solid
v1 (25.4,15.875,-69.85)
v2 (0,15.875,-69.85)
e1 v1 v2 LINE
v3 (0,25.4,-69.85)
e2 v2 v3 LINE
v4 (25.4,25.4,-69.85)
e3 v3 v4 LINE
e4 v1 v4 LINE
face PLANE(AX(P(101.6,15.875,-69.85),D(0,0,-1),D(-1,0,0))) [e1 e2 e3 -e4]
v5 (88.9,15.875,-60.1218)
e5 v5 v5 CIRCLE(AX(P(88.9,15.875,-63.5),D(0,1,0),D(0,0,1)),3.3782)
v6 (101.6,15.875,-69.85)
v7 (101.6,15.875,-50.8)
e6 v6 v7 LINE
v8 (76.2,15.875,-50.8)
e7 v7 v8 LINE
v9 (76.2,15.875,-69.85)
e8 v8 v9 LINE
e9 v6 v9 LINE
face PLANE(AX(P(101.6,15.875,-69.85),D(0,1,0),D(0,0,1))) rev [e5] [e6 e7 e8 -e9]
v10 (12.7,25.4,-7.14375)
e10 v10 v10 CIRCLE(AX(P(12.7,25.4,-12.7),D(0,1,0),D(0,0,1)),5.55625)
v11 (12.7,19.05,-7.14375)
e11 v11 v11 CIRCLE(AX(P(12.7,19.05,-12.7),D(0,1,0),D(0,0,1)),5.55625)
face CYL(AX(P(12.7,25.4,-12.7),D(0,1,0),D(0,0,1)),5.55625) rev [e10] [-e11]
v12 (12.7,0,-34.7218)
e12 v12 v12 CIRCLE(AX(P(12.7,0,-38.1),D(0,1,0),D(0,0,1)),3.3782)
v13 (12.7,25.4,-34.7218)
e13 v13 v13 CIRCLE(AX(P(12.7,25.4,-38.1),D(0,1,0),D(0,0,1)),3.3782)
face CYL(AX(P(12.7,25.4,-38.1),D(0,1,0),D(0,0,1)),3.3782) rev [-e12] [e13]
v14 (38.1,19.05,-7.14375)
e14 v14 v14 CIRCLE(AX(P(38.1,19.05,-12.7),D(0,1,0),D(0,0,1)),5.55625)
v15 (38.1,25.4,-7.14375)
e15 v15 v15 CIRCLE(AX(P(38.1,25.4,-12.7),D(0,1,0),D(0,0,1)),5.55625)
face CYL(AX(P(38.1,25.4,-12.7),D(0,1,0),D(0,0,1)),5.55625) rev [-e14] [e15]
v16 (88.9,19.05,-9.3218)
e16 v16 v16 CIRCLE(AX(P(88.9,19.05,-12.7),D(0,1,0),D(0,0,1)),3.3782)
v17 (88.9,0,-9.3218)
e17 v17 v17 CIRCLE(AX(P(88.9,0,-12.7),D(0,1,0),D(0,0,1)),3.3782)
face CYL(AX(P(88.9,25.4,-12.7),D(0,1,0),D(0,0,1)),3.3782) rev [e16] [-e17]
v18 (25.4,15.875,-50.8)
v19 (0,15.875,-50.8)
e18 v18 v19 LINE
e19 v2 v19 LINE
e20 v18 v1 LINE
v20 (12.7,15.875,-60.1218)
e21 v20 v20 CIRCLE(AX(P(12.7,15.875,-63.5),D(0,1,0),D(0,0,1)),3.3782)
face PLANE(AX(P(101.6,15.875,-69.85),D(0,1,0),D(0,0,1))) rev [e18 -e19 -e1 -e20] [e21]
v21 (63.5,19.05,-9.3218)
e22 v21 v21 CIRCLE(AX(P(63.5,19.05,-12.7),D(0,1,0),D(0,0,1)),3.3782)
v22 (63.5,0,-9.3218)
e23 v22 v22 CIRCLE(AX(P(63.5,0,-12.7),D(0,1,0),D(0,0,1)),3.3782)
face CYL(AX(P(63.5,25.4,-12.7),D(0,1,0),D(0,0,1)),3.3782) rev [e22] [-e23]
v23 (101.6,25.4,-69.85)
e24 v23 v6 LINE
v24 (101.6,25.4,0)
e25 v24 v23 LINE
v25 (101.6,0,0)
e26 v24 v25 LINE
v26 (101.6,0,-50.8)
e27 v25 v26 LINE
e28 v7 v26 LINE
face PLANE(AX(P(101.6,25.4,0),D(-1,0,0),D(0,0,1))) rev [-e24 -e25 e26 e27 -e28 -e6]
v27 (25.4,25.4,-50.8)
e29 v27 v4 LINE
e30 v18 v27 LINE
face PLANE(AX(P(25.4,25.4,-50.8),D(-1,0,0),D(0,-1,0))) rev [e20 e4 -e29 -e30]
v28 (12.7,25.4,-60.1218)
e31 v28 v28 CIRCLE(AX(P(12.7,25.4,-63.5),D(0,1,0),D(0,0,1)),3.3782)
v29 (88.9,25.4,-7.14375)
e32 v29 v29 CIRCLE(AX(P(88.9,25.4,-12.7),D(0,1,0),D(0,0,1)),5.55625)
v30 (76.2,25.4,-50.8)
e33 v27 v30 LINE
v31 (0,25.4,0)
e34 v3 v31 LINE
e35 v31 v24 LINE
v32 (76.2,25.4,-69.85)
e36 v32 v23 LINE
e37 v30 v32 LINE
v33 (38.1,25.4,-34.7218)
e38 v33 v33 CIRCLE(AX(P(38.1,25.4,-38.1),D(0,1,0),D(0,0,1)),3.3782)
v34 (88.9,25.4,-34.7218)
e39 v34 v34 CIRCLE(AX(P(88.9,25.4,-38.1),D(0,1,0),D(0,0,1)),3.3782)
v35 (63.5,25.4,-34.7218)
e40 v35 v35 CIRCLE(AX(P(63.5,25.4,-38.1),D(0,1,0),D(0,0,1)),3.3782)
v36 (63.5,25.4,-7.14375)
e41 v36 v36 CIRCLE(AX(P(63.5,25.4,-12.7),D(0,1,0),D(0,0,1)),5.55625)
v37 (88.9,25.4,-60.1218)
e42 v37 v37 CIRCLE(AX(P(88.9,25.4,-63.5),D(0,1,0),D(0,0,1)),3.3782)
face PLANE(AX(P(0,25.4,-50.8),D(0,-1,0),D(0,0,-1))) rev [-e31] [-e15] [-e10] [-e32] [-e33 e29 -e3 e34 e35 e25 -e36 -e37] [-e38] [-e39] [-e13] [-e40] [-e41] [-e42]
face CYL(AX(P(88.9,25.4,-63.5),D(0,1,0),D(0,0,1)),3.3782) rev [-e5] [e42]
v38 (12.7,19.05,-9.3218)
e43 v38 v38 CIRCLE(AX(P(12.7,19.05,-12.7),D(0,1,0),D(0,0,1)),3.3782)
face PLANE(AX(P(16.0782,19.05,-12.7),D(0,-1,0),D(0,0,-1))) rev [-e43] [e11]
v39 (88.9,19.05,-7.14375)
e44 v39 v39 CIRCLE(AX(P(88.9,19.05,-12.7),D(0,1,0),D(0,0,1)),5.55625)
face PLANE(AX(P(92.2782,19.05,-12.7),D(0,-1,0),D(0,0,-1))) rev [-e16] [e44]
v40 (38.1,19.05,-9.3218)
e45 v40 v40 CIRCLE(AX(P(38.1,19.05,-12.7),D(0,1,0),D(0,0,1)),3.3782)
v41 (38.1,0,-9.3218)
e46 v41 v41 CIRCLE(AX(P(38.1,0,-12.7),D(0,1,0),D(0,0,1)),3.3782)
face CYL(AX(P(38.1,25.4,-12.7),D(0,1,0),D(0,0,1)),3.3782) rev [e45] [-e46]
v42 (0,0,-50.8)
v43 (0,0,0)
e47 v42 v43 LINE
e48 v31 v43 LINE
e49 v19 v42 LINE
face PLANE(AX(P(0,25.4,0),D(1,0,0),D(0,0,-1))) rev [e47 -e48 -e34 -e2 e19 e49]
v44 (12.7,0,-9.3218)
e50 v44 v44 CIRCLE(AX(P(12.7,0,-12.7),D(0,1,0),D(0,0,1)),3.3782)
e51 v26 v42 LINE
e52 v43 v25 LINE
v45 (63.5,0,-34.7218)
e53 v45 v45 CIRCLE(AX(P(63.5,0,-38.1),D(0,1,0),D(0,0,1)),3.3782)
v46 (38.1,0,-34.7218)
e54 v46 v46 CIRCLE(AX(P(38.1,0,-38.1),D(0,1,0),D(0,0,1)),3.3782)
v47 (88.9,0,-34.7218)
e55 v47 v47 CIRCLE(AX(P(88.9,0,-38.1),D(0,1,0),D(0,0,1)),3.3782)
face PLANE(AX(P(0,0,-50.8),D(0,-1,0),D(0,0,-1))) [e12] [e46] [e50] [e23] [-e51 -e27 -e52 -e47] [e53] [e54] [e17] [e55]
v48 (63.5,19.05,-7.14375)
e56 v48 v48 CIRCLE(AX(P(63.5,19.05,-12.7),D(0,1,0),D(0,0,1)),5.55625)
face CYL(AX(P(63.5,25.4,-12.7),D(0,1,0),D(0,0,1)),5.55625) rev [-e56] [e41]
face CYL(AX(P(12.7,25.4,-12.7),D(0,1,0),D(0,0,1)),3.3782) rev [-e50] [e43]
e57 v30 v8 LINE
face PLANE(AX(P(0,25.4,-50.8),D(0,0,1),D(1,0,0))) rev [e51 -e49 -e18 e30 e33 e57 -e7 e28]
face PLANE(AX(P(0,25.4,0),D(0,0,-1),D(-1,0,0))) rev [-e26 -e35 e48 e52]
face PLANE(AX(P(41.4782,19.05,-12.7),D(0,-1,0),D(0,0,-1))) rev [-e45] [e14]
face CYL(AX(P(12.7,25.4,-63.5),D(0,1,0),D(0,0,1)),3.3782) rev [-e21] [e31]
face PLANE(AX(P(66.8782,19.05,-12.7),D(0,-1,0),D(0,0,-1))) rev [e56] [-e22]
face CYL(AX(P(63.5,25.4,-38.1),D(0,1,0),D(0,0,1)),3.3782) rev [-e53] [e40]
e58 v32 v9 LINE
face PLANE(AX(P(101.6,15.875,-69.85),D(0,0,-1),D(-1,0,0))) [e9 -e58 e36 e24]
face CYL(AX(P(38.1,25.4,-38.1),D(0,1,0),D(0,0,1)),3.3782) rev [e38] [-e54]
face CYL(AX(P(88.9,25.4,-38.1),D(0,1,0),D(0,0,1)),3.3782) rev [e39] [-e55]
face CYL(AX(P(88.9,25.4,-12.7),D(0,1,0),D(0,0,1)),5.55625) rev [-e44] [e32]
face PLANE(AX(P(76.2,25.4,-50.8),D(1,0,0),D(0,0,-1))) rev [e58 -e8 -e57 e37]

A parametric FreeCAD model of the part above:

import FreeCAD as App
import Part
import Sketcher
Q = App.Units.Quantity


def add_polygon(sketch, points):
    """Adds a closed chain of lines whose ends are joined by coincident constraints."""
    first, n = sketch.GeometryCount, len(points)
    for a, b in zip(points, points[1:] + points[:1]):
        sketch.addGeometry(Part.LineSegment(App.Vector(*a, 0), App.Vector(*b, 0)), False)
    for i in range(n):
        sketch.addConstraint(Sketcher.Constraint("Coincident", first + i, 2, first + (i + 1) % n, 1))

doc = App.newDocument("Part")
body = doc.addObject("PartDesign::Body", "Body")

# Sketch on XZ plane
sketch1 = body.newObject("Sketcher::SketchObject", "Sketch")
sketch1.AttachmentSupport = (doc.getObject("XZ_Plane"), [""])
sketch1.MapMode = "FlatFace"
add_polygon(sketch1, [(0, -51), (0, 0), (102, 0), (102, -51)])  # lines 0-3
sketch1.addConstraint(Sketcher.Constraint("Vertical", 0))
sketch1.addConstraint(Sketcher.Constraint("Horizontal", 1))
sketch1.addConstraint(Sketcher.Constraint("Vertical", 2))
sketch1.addConstraint(Sketcher.Constraint("Horizontal", 3))
sketch1.addConstraint(Sketcher.Constraint("Coincident", 0, 2, -1, 1))
sketch1.addConstraint(Sketcher.Constraint("DistanceX", 1, 1, 1, 2, Q("4 in")))
sketch1.addConstraint(Sketcher.Constraint("DistanceY", 0, 1, 0, 2, Q("2 in")))
pad1 = body.newObject("PartDesign::Pad", "Pad")
pad1.Profile = sketch1
pad1.Length = Q("1 in")
pad1.Reversed = True

# Sketch on XZ plane
sketch2 = body.newObject("Sketcher::SketchObject", "Sketch001")
sketch2.AttachmentSupport = (doc.getObject("XZ_Plane"), [""])
sketch2.MapMode = "FlatFace"
sketch2.AttachmentOffset = App.Placement(App.Vector(0, 0, -1 * 25.4), App.Rotation())
sketch2.addGeometry(Part.Circle(App.Vector(12.7, -12.7, 0), App.Vector(0, 0, 1), 3.4), False)
sketch2.addConstraint(Sketcher.Constraint("Diameter", 0, Q("0.266 in")))
sketch2.addConstraint(Sketcher.Constraint("DistanceX", -1, 1, 0, 3, Q("0.5 in")))
sketch2.addConstraint(Sketcher.Constraint("DistanceY", 0, 3, -1, 1, Q("0.5 in")))
doc.recompute()
hole = body.newObject("PartDesign::Hole", "Hole")
hole.Profile = sketch2
hole.ThreadType = "None"
hole.Diameter = Q("0.266 in")
hole.DepthType = "ThroughAll"
hole.HoleCutType = "Counterbore"
hole.HoleCutDiameter = Q("0.4375 in")
hole.HoleCutDepth = Q("0.25 in")
hole.Reversed = True
doc.recompute()

linearpattern = body.newObject("PartDesign::LinearPattern", "LinearPattern")
linearpattern.Originals = [hole]
linearpattern.Direction = (doc.getObject("X_Axis"), [""])
linearpattern.Mode = "offset"
linearpattern.Offset = Q("1 in")
linearpattern.Occurrences = 4
body.Tip = linearpattern

# Sketch on XZ plane
sketch3 = body.newObject("Sketcher::SketchObject", "Sketch002")
sketch3.AttachmentSupport = (doc.getObject("XZ_Plane"), [""])
sketch3.MapMode = "FlatFace"
sketch3.AttachmentOffset = App.Placement(App.Vector(0, 0, -1 * 25.4), App.Rotation())
sketch3.addGeometry(Part.Circle(App.Vector(12.7, -38.1, 0), App.Vector(0, 0, 1), 3.4), False)
sketch3.addConstraint(Sketcher.Constraint("Diameter", 0, Q("0.266 in")))
sketch3.addConstraint(Sketcher.Constraint("DistanceX", -1, 1, 0, 3, Q("0.5 in")))
sketch3.addConstraint(Sketcher.Constraint("DistanceY", 0, 3, -1, 1, Q("1.5 in")))
doc.recompute()
hole2 = body.newObject("PartDesign::Hole", "Hole001")
hole2.Profile = sketch3
hole2.ThreadType = "None"
hole2.Diameter = Q("0.266 in")
hole2.DepthType = "ThroughAll"
hole2.Reversed = True
doc.recompute()

linearpattern2 = body.newObject("PartDesign::LinearPattern", "LinearPattern001")
linearpattern2.Originals = [hole2]
linearpattern2.Direction = (doc.getObject("X_Axis"), [""])
linearpattern2.Mode = "offset"
linearpattern2.Offset = Q("1 in")
linearpattern2.Occurrences = 4
body.Tip = linearpattern2

# Sketch on XY plane
sketch4 = body.newObject("Sketcher::SketchObject", "Sketch003")
sketch4.AttachmentSupport = (doc.getObject("XY_Plane"), [""])
sketch4.MapMode = "FlatFace"
sketch4.AttachmentOffset = App.Placement(App.Vector(0, 0, -2 * 25.4), App.Rotation())
add_polygon(sketch4, [(102, 25), (102, 16), (0, 16), (0, 25)])  # lines 0-3
sketch4.addConstraint(Sketcher.Constraint("Vertical", 0))
sketch4.addConstraint(Sketcher.Constraint("Horizontal", 1))
sketch4.addConstraint(Sketcher.Constraint("Vertical", 2))
sketch4.addConstraint(Sketcher.Constraint("Horizontal", 3))
sketch4.addConstraint(Sketcher.Constraint("PointOnObject", 1, 2, -2))
sketch4.addConstraint(Sketcher.Constraint("DistanceX", 1, 2, 1, 1, Q("4 in")))
sketch4.addConstraint(Sketcher.Constraint("DistanceY", -1, 1, 2, 2, Q("1 in")))
sketch4.addConstraint(Sketcher.Constraint("DistanceY", 0, 2, 0, 1, Q("0.375 in")))
pad2 = body.newObject("PartDesign::Pad", "Pad001")
pad2.Profile = sketch4
pad2.Length = Q("0.75 in")
pad2.Reversed = True

# Sketch on XY plane
sketch5 = body.newObject("Sketcher::SketchObject", "Sketch004")
sketch5.AttachmentSupport = (doc.getObject("XY_Plane"), [""])
sketch5.MapMode = "FlatFace"
sketch5.AttachmentOffset = App.Placement(App.Vector(0, 0, -2.75 * 25.4), App.Rotation())
add_polygon(sketch5, [(76, 25), (76, 16), (25, 16), (25, 25)])  # lines 0-3
sketch5.addConstraint(Sketcher.Constraint("Vertical", 0))
sketch5.addConstraint(Sketcher.Constraint("Horizontal", 1))
sketch5.addConstraint(Sketcher.Constraint("Vertical", 2))
sketch5.addConstraint(Sketcher.Constraint("Horizontal", 3))
sketch5.addConstraint(Sketcher.Constraint("DistanceX", 1, 2, 1, 1, Q("2 in")))
sketch5.addConstraint(Sketcher.Constraint("DistanceX", -1, 1, 0, 2, Q("3 in")))
sketch5.addConstraint(Sketcher.Constraint("DistanceY", -1, 1, 2, 2, Q("1 in")))
sketch5.addConstraint(Sketcher.Constraint("DistanceY", 0, 2, 0, 1, Q("0.375 in")))
pocket1 = body.newObject("PartDesign::Pocket", "Pocket")
pocket1.Profile = sketch5
pocket1.Length = Q("0.75 in")
pocket1.Reversed = True
doc.recompute()

linearpattern3 = body.newObject("PartDesign::LinearPattern", "LinearPattern002")
linearpattern3.Originals = [hole2]
linearpattern3.Direction = (doc.getObject("Z_Axis"), [""])
linearpattern3.Mode = "offset"
linearpattern3.Offset = Q("1 in")
linearpattern3.Occurrences = 2
linearpattern3.Reversed = True
body.Tip = linearpattern3

# Sketch on XZ plane
sketch6 = body.newObject("Sketcher::SketchObject", "Sketch005")
sketch6.AttachmentSupport = (doc.getObject("XZ_Plane"), [""])
sketch6.MapMode = "FlatFace"
sketch6.AttachmentOffset = App.Placement(App.Vector(0, 0, -1 * 25.4), App.Rotation())
sketch6.addGeometry(Part.Circle(App.Vector(88.9, -63.5, 0), App.Vector(0, 0, 1), 3.4), False)
sketch6.addConstraint(Sketcher.Constraint("Diameter", 0, Q("0.266 in")))
sketch6.addConstraint(Sketcher.Constraint("DistanceX", -1, 1, 0, 3, Q("3.5 in")))
sketch6.addConstraint(Sketcher.Constraint("DistanceY", 0, 3, -1, 1, Q("2.5 in")))
doc.recompute()
hole3 = body.newObject("PartDesign::Hole", "Hole002")
hole3.Profile = sketch6
hole3.ThreadType = "None"
hole3.Diameter = Q("0.266 in")
hole3.DepthType = "ThroughAll"
hole3.Reversed = True

# Sketch on XZ plane
sketch7 = body.newObject("Sketcher::SketchObject", "Sketch006")
sketch7.AttachmentSupport = (doc.getObject("XZ_Plane"), [""])
sketch7.MapMode = "FlatFace"
sketch7.AttachmentOffset = App.Placement(App.Vector(0, 0, -1 * 25.4), App.Rotation())
sketch7.addGeometry(Part.Circle(App.Vector(88.9, -38.1, 0), App.Vector(0, 0, 1), 3.4), False)
sketch7.addConstraint(Sketcher.Constraint("Diameter", 0, Q("0.266 in")))
sketch7.addConstraint(Sketcher.Constraint("DistanceX", -1, 1, 0, 3, Q("3.5 in")))
sketch7.addConstraint(Sketcher.Constraint("DistanceY", 0, 3, -1, 1, Q("1.5 in")))
doc.recompute()
hole4 = body.newObject("PartDesign::Hole", "Hole003")
hole4.Profile = sketch7
hole4.ThreadType = "None"
hole4.Diameter = Q("0.266 in")
hole4.DepthType = "ThroughAll"
hole4.Reversed = True

doc.recompute()
